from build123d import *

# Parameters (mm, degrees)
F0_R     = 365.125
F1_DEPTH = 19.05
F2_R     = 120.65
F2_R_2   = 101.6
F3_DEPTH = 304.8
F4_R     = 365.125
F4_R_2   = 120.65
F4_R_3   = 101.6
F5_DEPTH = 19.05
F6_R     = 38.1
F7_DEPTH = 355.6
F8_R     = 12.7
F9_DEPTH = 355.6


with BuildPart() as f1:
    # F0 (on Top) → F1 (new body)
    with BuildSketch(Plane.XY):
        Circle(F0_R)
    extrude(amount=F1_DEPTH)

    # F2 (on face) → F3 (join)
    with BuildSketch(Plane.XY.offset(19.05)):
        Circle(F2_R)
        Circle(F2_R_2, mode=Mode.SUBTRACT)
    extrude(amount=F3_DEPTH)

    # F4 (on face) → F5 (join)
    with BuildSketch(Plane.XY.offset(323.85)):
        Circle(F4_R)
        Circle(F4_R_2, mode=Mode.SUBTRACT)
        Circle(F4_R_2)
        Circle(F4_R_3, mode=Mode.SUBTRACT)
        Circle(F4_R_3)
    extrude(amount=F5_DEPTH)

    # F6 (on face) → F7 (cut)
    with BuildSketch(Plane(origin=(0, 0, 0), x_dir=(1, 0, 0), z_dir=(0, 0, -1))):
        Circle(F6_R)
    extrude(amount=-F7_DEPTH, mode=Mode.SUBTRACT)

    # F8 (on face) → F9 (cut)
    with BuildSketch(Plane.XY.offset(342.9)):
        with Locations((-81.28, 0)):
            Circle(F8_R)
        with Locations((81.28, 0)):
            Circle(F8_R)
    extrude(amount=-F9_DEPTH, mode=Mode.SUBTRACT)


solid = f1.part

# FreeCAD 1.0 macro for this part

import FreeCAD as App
import Part
import Sketcher
from FreeCAD import Vector
Q = App.Units.Quantity

doc = App.newDocument("Part")
body = doc.addObject("PartDesign::Body", "Body")

sketch1 = body.newObject("Sketcher::SketchObject", "Sketch")
sketch1.AttachmentSupport = (doc.getObject("XY_Plane"), [""])
sketch1.MapMode = "FlatFace"
sketch1.addGeometry(Part.Circle(Vector(0, 0, 0), Vector(0, 0, 1), 365), False)
sketch1.addConstraint(Sketcher.Constraint("Coincident", 0, 3, -1, 1))
sketch1.addConstraint(Sketcher.Constraint("Diameter", 0, Q("28.75 in")))
pad1 = body.newObject("PartDesign::Pad", "Pad")
pad1.Profile = sketch1
pad1.Length = Q("0.75 in")

sketch2 = body.newObject("Sketcher::SketchObject", "Sketch001")
sketch2.AttachmentSupport = (doc.getObject("XY_Plane"), [""])
sketch2.MapMode = "FlatFace"
sketch2.AttachmentOffset = App.Placement(Vector(0, 0, 0.75 * 25.4), App.Rotation())
sketch2.addGeometry(Part.Circle(Vector(0, 0, 0), Vector(0, 0, 1), 121), False)
sketch2.addGeometry(Part.Circle(Vector(0, 0, 0), Vector(0, 0, 1), 102), False)
sketch2.addConstraint(Sketcher.Constraint("Coincident", 0, 3, -1, 1))
sketch2.addConstraint(Sketcher.Constraint("Coincident", 1, 3, -1, 1))
sketch2.addConstraint(Sketcher.Constraint("Diameter", 1, Q("8 in")))
sketch2.addConstraint(Sketcher.Constraint("Diameter", 0, Q("9.5 in")))
pad2 = body.newObject("PartDesign::Pad", "Pad001")
pad2.Profile = sketch2
pad2.Length = Q("12 in")

sketch3 = body.newObject("Sketcher::SketchObject", "Sketch002")
sketch3.AttachmentSupport = (doc.getObject("XY_Plane"), [""])
sketch3.MapMode = "FlatFace"
sketch3.AttachmentOffset = App.Placement(Vector(0, 0, 12.75 * 25.4), App.Rotation())
sketch3.addGeometry(Part.Circle(Vector(0, 0, 0), Vector(0, 0, 1), 365), False)
sketch3.addConstraint(Sketcher.Constraint("Coincident", 0, 3, -1, 1))
sketch3.addConstraint(Sketcher.Constraint("Diameter", 0, Q("28.75 in")))
pad3 = body.newObject("PartDesign::Pad", "Pad002")
pad3.Profile = sketch3
pad3.Length = Q("0.75 in")

sketch4 = body.newObject("Sketcher::SketchObject", "Sketch003")
sketch4.AttachmentSupport = (doc.getObject("XY_Plane"), [""])
sketch4.MapMode = "FlatFace"
sketch4.addGeometry(Part.Circle(Vector(0, 0, 0), Vector(0, 0, 1), 38), False)
sketch4.addConstraint(Sketcher.Constraint("Coincident", 0, 3, -1, 1))
sketch4.addConstraint(Sketcher.Constraint("Diameter", 0, Q("3 in")))
pocket1 = body.newObject("PartDesign::Pocket", "Pocket")
pocket1.Profile = sketch4
pocket1.Length = Q("14 in")
pocket1.Reversed = True

sketch5 = body.newObject("Sketcher::SketchObject", "Sketch004")
sketch5.AttachmentSupport = (doc.getObject("XY_Plane"), [""])
sketch5.MapMode = "FlatFace"
sketch5.AttachmentOffset = App.Placement(Vector(0, 0, 13.5 * 25.4), App.Rotation())
sketch5.addGeometry(Part.Circle(Vector(-81, 0, 0), Vector(0, 0, 1), 13), False)
sketch5.addGeometry(Part.Circle(Vector(81, 0, 0), Vector(0, 0, 1), 13), False)
sketch5.addConstraint(Sketcher.Constraint("Equal", 0, 1))
sketch5.addConstraint(Sketcher.Constraint("Symmetric", 0, 3, 1, 3, -1, 1))
sketch5.addConstraint(Sketcher.Constraint("PointOnObject", 0, 3, -1))
sketch5.addConstraint(Sketcher.Constraint("Diameter", 0, Q("1 in")))
sketch5.addConstraint(Sketcher.Constraint("DistanceX", 0, 3, -1, 1, Q("3.2 in")))
pocket2 = body.newObject("PartDesign::Pocket", "Pocket001")
pocket2.Profile = sketch5
pocket2.Length = Q("14 in")

doc.recompute()
